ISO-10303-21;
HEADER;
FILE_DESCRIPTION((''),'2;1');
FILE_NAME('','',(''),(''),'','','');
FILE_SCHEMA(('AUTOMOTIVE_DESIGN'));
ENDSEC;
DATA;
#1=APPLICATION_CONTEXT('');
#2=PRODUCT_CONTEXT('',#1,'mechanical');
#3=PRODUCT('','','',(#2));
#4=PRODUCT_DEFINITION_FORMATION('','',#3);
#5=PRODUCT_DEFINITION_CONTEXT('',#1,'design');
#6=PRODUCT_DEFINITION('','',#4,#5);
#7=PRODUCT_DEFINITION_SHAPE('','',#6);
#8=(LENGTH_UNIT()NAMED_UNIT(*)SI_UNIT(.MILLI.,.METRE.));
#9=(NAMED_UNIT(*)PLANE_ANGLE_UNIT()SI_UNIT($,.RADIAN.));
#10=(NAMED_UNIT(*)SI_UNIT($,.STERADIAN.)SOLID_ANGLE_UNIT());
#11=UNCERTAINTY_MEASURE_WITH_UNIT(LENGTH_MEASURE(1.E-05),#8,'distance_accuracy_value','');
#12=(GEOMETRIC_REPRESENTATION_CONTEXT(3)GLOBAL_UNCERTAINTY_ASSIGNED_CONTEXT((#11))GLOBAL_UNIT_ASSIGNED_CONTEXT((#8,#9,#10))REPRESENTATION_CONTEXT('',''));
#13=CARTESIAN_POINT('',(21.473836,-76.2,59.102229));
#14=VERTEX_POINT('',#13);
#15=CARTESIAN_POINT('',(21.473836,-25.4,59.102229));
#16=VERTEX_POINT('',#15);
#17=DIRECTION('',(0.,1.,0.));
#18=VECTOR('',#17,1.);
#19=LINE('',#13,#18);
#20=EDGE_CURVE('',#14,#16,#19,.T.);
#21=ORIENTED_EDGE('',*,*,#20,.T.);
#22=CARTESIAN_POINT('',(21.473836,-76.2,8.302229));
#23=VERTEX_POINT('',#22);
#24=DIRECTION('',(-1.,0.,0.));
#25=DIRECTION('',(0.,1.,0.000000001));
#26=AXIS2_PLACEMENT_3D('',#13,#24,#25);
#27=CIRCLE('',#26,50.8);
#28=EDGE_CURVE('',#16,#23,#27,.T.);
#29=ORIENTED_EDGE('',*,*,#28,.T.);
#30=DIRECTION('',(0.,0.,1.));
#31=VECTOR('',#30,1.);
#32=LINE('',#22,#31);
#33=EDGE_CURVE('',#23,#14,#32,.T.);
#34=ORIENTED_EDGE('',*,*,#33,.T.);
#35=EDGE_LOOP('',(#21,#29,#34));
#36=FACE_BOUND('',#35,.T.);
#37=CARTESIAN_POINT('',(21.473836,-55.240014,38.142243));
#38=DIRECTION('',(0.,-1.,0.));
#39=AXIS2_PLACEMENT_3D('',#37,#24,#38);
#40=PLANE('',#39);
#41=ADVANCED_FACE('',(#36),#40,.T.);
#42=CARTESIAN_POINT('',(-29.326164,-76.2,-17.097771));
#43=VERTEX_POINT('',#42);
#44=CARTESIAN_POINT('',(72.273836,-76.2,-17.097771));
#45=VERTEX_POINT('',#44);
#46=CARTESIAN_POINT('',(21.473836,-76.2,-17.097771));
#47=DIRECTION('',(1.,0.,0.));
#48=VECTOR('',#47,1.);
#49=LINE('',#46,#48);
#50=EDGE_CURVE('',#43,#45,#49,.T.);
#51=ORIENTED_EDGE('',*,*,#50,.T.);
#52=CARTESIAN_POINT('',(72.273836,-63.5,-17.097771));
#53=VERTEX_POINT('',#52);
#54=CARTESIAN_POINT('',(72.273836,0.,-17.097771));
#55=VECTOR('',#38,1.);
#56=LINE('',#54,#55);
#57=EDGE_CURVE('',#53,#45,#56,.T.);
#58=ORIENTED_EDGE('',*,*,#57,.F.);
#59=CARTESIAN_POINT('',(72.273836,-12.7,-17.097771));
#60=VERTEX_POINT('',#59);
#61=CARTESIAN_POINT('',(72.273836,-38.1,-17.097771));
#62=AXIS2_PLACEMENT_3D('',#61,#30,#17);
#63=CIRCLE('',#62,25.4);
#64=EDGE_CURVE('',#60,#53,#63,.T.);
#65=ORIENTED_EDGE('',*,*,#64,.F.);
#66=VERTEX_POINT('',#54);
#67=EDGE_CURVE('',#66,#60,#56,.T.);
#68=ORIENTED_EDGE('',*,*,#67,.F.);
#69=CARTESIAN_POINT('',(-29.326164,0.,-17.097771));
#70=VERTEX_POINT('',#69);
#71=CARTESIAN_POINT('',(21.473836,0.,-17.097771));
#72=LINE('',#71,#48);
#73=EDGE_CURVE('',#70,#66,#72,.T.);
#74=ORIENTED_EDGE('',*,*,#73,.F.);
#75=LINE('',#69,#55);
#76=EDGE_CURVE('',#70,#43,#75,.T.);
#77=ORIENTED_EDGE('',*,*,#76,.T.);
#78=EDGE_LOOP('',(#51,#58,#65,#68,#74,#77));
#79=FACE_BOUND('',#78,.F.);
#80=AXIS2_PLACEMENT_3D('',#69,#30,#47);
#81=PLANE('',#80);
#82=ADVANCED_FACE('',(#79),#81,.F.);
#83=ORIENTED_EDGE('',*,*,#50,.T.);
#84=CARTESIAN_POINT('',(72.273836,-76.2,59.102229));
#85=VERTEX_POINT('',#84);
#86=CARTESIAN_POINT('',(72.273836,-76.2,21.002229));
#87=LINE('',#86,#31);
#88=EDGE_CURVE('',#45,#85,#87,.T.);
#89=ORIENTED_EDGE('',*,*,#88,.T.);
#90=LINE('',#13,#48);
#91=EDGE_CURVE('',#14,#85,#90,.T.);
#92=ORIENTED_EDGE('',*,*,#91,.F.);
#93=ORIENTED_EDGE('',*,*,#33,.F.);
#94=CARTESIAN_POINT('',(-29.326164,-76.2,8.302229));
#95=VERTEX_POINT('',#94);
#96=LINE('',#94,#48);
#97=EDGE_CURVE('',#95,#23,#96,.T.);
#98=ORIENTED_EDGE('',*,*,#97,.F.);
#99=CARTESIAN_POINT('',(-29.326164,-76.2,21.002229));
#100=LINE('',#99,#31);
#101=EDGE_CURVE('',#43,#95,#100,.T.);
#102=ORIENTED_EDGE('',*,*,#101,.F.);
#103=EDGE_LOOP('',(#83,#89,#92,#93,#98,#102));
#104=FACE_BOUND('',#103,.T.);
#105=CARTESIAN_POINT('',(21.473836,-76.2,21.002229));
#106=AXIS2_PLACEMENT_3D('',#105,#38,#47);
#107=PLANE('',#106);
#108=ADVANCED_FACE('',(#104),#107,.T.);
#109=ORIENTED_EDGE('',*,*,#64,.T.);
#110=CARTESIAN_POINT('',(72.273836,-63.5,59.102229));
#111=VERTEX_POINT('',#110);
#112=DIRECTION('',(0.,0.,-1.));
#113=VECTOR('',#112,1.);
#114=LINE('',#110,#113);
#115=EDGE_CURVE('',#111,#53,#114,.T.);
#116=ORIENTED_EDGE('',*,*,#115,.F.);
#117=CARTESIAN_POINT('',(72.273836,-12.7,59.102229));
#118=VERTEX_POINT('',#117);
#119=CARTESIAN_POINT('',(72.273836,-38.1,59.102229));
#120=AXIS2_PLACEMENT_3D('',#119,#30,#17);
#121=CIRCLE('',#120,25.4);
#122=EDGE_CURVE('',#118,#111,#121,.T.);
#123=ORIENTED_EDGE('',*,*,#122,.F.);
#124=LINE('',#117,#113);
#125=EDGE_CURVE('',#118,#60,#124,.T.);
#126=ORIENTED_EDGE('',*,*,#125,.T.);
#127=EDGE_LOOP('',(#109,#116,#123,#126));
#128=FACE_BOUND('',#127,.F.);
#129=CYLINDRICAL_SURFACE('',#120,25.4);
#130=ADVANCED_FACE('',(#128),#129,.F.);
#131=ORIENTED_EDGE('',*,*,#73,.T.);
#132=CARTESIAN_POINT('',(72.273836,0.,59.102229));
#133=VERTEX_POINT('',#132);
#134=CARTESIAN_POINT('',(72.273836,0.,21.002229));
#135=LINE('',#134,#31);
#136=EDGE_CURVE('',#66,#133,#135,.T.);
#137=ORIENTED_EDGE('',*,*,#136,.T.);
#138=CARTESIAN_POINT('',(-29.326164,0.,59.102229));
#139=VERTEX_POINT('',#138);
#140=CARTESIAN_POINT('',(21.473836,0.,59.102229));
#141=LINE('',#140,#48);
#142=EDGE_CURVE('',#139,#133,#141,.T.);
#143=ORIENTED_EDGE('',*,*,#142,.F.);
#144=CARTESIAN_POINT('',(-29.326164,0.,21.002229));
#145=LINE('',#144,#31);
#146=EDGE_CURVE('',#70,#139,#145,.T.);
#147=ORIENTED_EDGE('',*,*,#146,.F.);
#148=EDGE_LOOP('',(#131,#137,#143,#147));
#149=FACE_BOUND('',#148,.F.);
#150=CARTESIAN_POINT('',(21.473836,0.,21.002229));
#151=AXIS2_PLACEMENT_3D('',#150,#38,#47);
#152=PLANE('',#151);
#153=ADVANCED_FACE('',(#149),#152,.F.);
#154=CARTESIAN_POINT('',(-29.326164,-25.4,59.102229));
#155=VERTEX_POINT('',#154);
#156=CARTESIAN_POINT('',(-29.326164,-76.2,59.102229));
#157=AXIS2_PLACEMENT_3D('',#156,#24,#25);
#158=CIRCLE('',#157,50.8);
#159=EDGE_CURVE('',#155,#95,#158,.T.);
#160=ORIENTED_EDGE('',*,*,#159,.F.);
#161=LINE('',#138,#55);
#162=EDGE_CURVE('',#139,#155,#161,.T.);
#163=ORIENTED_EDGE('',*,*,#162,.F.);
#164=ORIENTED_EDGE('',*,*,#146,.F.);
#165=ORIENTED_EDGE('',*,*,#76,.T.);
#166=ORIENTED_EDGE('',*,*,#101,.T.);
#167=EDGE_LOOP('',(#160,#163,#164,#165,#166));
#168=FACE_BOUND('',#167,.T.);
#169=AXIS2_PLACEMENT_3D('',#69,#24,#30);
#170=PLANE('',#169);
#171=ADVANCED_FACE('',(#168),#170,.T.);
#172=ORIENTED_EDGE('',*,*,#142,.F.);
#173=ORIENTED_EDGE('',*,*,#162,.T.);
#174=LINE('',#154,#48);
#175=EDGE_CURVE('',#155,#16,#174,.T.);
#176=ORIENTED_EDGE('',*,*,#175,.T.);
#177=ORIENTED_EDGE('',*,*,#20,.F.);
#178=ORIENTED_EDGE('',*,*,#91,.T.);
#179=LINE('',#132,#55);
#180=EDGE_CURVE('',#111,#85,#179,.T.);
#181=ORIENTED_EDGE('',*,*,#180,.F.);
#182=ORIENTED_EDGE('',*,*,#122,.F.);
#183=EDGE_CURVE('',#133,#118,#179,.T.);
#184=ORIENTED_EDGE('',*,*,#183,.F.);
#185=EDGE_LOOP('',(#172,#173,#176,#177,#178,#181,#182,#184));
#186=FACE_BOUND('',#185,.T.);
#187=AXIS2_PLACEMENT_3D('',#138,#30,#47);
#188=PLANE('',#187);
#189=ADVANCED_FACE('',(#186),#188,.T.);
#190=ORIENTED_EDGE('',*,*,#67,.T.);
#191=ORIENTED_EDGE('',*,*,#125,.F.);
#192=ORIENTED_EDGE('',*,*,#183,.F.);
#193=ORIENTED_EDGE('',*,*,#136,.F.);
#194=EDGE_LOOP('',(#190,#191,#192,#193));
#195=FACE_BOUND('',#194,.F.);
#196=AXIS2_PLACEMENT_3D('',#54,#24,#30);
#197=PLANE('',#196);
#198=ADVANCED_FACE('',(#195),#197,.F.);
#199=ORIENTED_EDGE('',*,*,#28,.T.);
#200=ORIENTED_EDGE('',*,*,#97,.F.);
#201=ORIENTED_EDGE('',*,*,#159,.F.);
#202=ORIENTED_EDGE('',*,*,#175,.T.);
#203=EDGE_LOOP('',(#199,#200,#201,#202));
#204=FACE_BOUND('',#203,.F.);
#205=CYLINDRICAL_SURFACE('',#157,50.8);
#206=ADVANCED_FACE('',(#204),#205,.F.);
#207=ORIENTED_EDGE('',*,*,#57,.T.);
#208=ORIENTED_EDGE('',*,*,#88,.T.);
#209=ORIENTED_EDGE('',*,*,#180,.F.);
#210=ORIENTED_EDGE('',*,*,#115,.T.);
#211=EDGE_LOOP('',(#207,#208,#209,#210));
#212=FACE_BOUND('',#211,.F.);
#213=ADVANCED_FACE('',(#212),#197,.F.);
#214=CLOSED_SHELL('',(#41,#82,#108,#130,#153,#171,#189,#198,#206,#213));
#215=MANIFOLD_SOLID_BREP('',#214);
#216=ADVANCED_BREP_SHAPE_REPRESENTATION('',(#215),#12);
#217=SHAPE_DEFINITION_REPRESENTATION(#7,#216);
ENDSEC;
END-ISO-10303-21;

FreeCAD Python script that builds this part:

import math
import FreeCAD as App
import Part
import Sketcher
Q = App.Units.Quantity


def add_polygon(sketch, points):
    """Adds a closed chain of lines whose ends are joined by coincident constraints."""
    first, n = sketch.GeometryCount, len(points)
    for a, b in zip(points, points[1:] + points[:1]):
        sketch.addGeometry(Part.LineSegment(App.Vector(*a, 0), App.Vector(*b, 0)), False)
    for i in range(n):
        sketch.addConstraint(Sketcher.Constraint("Coincident", first + i, 2, first + (i + 1) % n, 1))

doc = App.newDocument("Part")
params = doc.addObject("Spreadsheet::Sheet", "Params")
for row, (alias, value) in enumerate([
    ("sketch1_width", "4 in"),
    ("sketch1_height", "3 in"),
    ("pad1_length", "3 in"),
    ("sketch2_radius", "1 in"),
    ("sketch3_radius", "2 in"),
    ("pocket2_length", "2 in"),
], start=1):
    params.set(f"A{row}", alias)
    params.set(f"B{row}", "=" + value)
    params.setAlias(f"B{row}", alias)

body = doc.addObject("PartDesign::Body", "Body")

# Sketch on XZ plane
sketch1 = body.newObject("Sketcher::SketchObject", "Sketch")
sketch1.AttachmentSupport = (doc.getObject("XZ_Plane"), [""])
sketch1.MapMode = "FlatFace"
add_polygon(sketch1, [(-29, 59), (-29, -17), (72, -17), (72, 59)])  # lines 0-3
sketch1.addConstraint(Sketcher.Constraint("Vertical", 0))
sketch1.addConstraint(Sketcher.Constraint("Horizontal", 1))
sketch1.addConstraint(Sketcher.Constraint("Vertical", 2))
sketch1.addConstraint(Sketcher.Constraint("Horizontal", 3))
sketch1.addConstraint(Sketcher.Constraint("DistanceX", 1, 1, 1, 2, Q("4 in")))
sketch1.addConstraint(Sketcher.Constraint("DistanceY", 0, 2, 0, 1, Q("3 in")))
sketch1.addConstraint(Sketcher.Constraint("DistanceY", 0, 2, -1, 1, Q("17.097771 mm")))
sketch1.addConstraint(Sketcher.Constraint("DistanceX", 0, 2, -1, 1, Q("29.326164 mm")))
sketch1.setExpression("Constraints[8]", "Params.sketch1_width")
sketch1.setExpression("Constraints[9]", "Params.sketch1_height")
pad1 = body.newObject("PartDesign::Pad", "Pad")
pad1.Profile = sketch1
pad1.setExpression("Length", "Params.pad1_length")

# Sketch on XY plane
sketch2 = body.newObject("Sketcher::SketchObject", "Sketch001")
sketch2.AttachmentSupport = (doc.getObject("XY_Plane"), [""])
sketch2.MapMode = "FlatFace"
sketch2.AttachmentOffset = App.Placement(App.Vector(0, 0, 59.102229), App.Rotation())
sketch2.addGeometry(Part.LineSegment(App.Vector(72, -64, 0), App.Vector(72, -13, 0)), False)
sketch2.addGeometry(Part.ArcOfCircle(Part.Circle(App.Vector(72, -38, 0), App.Vector(0, 0, 1), 25), math.radians(90), math.radians(270)), False)
sketch2.addConstraint(Sketcher.Constraint("Coincident", 0, 1, 1, 2))
sketch2.addConstraint(Sketcher.Constraint("Coincident", 1, 1, 0, 2))
sketch2.addConstraint(Sketcher.Constraint("Vertical", 0))
sketch2.addConstraint(Sketcher.Constraint("Vertical", 1, 3, 0, 1))
sketch2.addConstraint(Sketcher.Constraint("Radius", 1, Q("1 in")))
sketch2.addConstraint(Sketcher.Constraint("DistanceY", 1, 3, -1, 1, Q("1.5 in")))
sketch2.addConstraint(Sketcher.Constraint("DistanceX", -1, 1, 1, 3, Q("72.273836 mm")))
sketch2.setExpression("Constraints[4]", "Params.sketch2_radius")
pocket1 = body.newObject("PartDesign::Pocket", "Pocket")
pocket1.Profile = sketch2
pocket1.Type = "ThroughAll"

# Sketch on YZ plane
sketch3 = body.newObject("Sketcher::SketchObject", "Sketch002")
sketch3.AttachmentSupport = (doc.getObject("YZ_Plane"), [""])
sketch3.MapMode = "FlatFace"
sketch3.AttachmentOffset = App.Placement(App.Vector(0, 0, -29.326164), App.Rotation())
sketch3.addGeometry(Part.LineSegment(App.Vector(-76, 59, 0), App.Vector(-25, 59, 0)), False)
sketch3.addGeometry(Part.ArcOfCircle(Part.Circle(App.Vector(-76, 59, 0), App.Vector(0, 0, 1), 51), math.radians(-90), math.radians(0)), False)
sketch3.addGeometry(Part.LineSegment(App.Vector(-76, 8, 0), App.Vector(-76, 59, 0)), False)
sketch3.addConstraint(Sketcher.Constraint("Coincident", 0, 2, 1, 2))
sketch3.addConstraint(Sketcher.Constraint("Coincident", 1, 1, 2, 1))
sketch3.addConstraint(Sketcher.Constraint("Coincident", 2, 2, 0, 1))
sketch3.addConstraint(Sketcher.Constraint("Horizontal", 0))
sketch3.addConstraint(Sketcher.Constraint("Vertical", 2))
sketch3.addConstraint(Sketcher.Constraint("Coincident", 2, 2, 1, 3))
sketch3.addConstraint(Sketcher.Constraint("Radius", 1, Q("2 in")))
sketch3.addConstraint(Sketcher.Constraint("DistanceX", 1, 3, -1, 1, Q("3 in")))
sketch3.addConstraint(Sketcher.Constraint("DistanceY", -1, 1, 1, 3, Q("59.102229 mm")))
sketch3.setExpression("Constraints[6]", "Params.sketch3_radius")
pocket2 = body.newObject("PartDesign::Pocket", "Pocket001")
pocket2.Profile = sketch3
pocket2.setExpression("Length", "Params.pocket2_length")
pocket2.Reversed = True

doc.recompute()
